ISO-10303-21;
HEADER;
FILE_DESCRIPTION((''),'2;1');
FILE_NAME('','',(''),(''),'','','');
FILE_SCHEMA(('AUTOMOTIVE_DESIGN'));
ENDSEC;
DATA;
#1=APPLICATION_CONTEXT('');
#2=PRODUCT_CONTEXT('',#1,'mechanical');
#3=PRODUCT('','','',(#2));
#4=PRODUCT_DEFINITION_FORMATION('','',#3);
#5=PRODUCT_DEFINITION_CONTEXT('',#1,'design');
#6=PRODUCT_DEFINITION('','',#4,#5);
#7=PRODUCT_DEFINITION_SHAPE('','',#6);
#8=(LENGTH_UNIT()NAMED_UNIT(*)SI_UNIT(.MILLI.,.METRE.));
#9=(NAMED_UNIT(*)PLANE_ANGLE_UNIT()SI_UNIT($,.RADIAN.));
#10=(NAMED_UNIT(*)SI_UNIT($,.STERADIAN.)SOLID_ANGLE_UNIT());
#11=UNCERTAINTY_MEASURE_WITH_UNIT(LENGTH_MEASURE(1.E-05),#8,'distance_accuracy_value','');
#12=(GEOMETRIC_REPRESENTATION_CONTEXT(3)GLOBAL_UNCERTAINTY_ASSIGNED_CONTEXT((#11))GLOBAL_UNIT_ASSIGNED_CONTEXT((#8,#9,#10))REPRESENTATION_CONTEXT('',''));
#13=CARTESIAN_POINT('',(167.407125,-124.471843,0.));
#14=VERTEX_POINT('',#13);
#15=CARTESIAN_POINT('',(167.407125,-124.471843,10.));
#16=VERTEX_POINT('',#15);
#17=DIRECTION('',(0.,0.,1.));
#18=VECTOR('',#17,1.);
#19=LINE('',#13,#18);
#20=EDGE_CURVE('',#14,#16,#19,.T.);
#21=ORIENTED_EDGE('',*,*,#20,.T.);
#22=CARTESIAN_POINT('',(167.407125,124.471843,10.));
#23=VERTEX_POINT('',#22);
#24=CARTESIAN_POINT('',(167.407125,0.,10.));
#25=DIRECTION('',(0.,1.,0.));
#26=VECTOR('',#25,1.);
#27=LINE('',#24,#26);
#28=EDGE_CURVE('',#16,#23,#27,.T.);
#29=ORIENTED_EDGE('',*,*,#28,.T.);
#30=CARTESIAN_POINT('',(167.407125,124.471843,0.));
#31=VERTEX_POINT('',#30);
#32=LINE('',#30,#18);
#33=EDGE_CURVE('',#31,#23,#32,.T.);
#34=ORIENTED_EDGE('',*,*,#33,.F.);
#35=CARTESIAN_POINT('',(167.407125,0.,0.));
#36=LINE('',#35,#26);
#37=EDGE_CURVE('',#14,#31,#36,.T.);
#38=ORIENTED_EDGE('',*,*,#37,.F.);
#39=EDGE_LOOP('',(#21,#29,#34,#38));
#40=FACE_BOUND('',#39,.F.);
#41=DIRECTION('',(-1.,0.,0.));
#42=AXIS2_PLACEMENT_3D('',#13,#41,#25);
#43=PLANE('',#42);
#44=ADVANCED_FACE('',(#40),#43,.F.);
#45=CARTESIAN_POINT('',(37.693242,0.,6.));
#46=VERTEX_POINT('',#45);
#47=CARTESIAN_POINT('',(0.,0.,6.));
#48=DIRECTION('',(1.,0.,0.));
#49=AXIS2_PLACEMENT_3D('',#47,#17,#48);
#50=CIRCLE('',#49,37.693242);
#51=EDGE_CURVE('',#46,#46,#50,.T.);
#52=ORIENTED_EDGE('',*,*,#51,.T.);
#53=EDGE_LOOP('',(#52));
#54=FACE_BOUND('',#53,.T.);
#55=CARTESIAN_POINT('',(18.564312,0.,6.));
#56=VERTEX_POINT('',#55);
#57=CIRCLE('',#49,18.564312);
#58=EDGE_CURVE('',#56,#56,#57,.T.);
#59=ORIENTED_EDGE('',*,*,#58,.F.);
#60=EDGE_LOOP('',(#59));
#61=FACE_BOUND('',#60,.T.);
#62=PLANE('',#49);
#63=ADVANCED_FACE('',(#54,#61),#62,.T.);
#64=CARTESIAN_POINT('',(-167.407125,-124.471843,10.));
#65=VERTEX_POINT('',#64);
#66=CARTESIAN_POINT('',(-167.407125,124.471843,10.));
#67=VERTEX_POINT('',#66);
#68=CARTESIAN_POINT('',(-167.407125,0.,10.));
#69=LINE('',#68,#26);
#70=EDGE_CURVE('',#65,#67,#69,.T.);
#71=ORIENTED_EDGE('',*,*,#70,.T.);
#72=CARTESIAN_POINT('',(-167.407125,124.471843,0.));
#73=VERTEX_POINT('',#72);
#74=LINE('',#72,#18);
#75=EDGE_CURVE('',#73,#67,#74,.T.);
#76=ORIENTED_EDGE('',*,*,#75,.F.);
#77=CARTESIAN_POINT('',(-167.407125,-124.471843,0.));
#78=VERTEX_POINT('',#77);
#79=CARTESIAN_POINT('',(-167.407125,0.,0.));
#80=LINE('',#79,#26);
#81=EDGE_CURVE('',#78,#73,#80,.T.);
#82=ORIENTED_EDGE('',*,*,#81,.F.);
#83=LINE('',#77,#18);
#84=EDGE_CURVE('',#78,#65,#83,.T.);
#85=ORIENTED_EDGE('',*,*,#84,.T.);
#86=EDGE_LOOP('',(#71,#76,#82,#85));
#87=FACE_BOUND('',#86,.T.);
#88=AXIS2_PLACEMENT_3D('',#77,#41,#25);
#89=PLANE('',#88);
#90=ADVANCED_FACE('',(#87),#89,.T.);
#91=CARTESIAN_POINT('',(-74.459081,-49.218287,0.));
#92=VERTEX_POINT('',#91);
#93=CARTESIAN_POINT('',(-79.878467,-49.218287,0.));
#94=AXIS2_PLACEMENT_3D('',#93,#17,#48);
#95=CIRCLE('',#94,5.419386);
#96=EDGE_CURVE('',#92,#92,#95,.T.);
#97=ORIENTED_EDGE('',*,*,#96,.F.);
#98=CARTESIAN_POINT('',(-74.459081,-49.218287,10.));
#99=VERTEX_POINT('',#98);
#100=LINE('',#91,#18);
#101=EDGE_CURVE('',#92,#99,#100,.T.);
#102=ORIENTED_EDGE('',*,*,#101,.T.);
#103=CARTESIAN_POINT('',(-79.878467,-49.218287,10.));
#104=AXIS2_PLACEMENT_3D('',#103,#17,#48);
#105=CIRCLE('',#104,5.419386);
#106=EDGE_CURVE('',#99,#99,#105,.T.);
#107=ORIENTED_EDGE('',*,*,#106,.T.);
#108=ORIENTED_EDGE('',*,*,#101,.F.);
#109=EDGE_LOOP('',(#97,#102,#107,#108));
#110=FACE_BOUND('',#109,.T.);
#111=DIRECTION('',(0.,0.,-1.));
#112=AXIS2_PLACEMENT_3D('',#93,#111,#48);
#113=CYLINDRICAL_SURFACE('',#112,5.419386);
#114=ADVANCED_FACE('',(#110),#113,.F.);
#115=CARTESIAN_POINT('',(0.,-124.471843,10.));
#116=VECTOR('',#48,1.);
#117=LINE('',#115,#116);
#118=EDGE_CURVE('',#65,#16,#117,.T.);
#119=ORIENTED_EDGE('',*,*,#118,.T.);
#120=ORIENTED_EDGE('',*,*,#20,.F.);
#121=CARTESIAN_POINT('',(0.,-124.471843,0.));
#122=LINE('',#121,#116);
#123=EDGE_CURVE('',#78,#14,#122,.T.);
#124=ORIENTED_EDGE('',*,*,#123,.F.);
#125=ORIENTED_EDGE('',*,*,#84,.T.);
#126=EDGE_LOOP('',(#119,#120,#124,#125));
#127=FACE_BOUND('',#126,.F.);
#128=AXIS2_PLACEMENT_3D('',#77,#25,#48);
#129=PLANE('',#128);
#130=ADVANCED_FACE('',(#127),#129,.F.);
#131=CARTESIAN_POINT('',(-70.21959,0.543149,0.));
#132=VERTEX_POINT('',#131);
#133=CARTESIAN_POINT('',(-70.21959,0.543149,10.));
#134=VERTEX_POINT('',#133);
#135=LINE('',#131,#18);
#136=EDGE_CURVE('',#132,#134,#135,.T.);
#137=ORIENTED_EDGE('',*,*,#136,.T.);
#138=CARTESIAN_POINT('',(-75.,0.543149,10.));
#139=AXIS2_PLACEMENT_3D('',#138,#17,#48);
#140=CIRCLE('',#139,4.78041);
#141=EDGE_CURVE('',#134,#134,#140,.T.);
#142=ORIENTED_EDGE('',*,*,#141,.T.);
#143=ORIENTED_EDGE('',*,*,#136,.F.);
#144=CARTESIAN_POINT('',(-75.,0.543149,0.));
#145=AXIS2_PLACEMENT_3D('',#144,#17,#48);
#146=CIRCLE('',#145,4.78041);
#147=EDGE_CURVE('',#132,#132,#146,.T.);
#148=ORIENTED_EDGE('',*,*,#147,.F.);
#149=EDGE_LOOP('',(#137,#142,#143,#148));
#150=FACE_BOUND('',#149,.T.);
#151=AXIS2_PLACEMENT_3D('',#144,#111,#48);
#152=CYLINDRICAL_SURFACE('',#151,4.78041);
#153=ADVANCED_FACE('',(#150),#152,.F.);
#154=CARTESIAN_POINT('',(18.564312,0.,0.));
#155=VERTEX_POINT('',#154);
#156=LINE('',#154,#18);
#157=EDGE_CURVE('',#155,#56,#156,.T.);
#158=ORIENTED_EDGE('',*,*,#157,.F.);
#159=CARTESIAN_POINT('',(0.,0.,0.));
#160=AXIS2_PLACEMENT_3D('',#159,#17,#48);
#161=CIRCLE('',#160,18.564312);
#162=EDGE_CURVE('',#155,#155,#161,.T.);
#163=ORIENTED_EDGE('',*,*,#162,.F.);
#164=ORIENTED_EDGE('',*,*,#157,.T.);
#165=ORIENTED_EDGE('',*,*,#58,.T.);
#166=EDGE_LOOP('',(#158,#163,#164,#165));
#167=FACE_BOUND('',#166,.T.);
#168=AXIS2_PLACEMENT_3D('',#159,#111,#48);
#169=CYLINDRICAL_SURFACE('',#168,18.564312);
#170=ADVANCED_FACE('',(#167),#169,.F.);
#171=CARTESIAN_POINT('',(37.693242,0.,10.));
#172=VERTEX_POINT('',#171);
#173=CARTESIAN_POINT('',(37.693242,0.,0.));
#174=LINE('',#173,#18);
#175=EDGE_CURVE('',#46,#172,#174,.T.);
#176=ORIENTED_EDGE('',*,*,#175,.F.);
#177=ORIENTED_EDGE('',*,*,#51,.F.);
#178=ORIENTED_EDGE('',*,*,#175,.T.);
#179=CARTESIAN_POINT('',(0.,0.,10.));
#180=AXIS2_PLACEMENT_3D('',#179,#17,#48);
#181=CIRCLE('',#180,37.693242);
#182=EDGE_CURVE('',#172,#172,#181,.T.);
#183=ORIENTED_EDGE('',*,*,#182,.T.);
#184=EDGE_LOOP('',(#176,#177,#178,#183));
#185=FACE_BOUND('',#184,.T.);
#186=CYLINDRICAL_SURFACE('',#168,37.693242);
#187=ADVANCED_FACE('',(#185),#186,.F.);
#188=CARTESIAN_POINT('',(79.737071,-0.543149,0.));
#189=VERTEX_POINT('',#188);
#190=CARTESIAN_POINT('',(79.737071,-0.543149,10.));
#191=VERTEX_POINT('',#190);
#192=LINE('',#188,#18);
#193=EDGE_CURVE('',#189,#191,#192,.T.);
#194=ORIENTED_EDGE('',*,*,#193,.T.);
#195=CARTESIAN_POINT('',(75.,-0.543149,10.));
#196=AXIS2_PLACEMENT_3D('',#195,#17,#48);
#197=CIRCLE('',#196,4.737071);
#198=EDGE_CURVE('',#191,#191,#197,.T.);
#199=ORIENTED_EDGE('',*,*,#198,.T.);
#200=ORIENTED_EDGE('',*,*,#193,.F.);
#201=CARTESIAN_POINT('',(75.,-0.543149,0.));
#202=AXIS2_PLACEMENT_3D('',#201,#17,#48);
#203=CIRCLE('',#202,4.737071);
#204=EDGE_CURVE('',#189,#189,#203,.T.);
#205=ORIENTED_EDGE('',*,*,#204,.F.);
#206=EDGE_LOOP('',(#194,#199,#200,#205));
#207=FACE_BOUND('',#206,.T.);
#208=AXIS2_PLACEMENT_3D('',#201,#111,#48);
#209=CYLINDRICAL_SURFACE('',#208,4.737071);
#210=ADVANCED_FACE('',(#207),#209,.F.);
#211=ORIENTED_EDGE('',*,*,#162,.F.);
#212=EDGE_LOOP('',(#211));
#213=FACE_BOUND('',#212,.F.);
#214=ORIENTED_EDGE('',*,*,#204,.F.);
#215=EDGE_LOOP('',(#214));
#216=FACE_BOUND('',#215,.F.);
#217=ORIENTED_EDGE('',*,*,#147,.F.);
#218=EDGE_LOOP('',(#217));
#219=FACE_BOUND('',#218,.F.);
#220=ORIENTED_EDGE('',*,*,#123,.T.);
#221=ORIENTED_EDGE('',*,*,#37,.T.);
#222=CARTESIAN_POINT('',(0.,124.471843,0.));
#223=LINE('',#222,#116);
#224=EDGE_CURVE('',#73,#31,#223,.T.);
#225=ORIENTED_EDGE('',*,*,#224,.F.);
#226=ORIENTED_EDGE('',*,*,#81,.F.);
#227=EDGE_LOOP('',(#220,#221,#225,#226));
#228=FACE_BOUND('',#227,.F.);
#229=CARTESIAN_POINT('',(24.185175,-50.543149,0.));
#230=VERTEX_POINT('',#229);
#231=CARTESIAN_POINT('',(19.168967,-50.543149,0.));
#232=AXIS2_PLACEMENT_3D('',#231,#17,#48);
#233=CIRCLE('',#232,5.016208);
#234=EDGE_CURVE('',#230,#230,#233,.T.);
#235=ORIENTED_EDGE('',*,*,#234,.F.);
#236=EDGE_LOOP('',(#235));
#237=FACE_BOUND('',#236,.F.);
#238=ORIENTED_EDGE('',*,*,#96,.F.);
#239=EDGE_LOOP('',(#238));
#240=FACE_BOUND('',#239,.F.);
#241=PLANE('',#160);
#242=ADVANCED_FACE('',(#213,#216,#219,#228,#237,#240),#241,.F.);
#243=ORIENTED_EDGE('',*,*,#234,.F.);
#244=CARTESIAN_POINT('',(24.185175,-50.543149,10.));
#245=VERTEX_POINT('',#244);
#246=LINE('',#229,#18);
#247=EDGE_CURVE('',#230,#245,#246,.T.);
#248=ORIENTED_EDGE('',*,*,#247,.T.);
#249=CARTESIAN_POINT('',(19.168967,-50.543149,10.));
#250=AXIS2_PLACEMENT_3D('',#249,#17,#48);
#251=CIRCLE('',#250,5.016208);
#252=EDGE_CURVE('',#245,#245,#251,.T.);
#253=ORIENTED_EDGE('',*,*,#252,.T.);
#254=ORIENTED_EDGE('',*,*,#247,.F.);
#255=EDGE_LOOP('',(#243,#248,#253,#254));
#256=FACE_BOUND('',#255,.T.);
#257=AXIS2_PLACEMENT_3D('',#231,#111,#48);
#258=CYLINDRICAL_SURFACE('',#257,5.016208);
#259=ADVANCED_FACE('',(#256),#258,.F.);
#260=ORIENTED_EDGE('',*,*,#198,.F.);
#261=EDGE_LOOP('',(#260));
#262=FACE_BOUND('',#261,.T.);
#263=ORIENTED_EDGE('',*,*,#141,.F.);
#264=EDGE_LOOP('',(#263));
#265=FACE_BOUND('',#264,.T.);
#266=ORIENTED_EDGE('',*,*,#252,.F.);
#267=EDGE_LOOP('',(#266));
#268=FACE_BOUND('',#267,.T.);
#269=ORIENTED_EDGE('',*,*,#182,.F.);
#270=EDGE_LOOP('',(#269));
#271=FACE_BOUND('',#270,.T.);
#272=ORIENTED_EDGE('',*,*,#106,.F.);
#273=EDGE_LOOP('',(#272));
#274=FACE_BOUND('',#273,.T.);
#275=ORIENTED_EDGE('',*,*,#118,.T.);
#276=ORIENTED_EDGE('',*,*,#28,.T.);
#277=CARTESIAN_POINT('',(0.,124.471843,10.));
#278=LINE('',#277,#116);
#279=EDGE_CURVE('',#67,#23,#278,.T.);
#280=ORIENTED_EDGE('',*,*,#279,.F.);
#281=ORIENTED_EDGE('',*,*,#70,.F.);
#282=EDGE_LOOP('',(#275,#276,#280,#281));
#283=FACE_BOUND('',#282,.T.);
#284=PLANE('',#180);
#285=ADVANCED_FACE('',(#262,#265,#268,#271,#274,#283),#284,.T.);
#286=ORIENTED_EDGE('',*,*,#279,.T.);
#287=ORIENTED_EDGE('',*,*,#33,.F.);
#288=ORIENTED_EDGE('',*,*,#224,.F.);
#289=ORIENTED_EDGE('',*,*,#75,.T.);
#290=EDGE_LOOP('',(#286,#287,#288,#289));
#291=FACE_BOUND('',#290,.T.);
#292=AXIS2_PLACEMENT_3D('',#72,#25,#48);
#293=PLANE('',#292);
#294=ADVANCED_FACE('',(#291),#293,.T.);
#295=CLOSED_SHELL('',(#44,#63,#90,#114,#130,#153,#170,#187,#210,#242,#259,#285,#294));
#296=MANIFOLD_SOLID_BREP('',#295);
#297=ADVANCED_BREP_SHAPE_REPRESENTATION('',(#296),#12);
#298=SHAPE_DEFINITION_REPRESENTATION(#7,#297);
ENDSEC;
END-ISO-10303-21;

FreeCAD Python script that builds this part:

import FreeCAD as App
import Part
import Sketcher

V = App.Vector

doc = App.newDocument("Part")
params = doc.addObject("Spreadsheet::Sheet", "Params")
for row, (alias, value) in enumerate([
    ("pad1_length", "10 mm"),
    ("pad2_length", "6 mm"),
], start=1):
    params.set(f"A{row}", alias)
    params.set(f"B{row}", "=" + value)
    params.setAlias(f"B{row}", alias)

body = doc.addObject("PartDesign::Body", "Body")

sketch1 = doc.addObject("Sketcher::SketchObject", "Sketch")
body.addObject(sketch1)
sketch1.AttachmentSupport = (doc.XY_Plane, [""])
sketch1.MapMode = "FlatFace"
sketch1.addGeometry([
    Part.LineSegment(V(-167.4, 124.5, 0), V(-167.4, -124.5, 0)),
    Part.LineSegment(V(-167.4, -124.5, 0), V(167.4, -124.5, 0)),
    Part.LineSegment(V(167.4, -124.5, 0), V(167.4, 124.5, 0)),
    Part.LineSegment(V(167.4, 124.5, 0), V(-167.4, 124.5, 0)),
    Part.Circle(V(-79.9, -49.2, 0), V(0, 0, 1), 5.4),
    Part.Circle(V(19.2, -50.5, 0), V(0, 0, 1), 5),
    Part.Circle(V(-75, 0.5, 0), V(0, 0, 1), 4.8),
    Part.Circle(V(0, 0, 0), V(0, 0, 1), 37.7),
    Part.Circle(V(75, -0.5, 0), V(0, 0, 1), 4.7),
], False)
sketch1.addConstraint([
    Sketcher.Constraint("Coincident", 0, 2, 1, 1),
    Sketcher.Constraint("Coincident", 1, 2, 2, 1),
    Sketcher.Constraint("Coincident", 2, 2, 3, 1),
    Sketcher.Constraint("Coincident", 3, 2, 0, 1),
    Sketcher.Constraint("Vertical", 0),
    Sketcher.Constraint("Horizontal", 1),
    Sketcher.Constraint("Vertical", 2),
    Sketcher.Constraint("Horizontal", 3),
    Sketcher.Constraint("Coincident", 7, 3, -1, 1),
    Sketcher.Constraint("Symmetric", 6, 3, 8, 3, -1, 1),
    Sketcher.Constraint("Symmetric", 0, 2, 2, 2, -1, 1),
    Sketcher.Constraint("DistanceX", 6, 3, -1, 1, 75.0),
    Sketcher.Constraint("DistanceY", 5, 3, 8, 3, 50.0),
    Sketcher.Constraint("Diameter", 6, 9.56082),
    Sketcher.Constraint("Diameter", 4, 10.838772),
    Sketcher.Constraint("Diameter", 5, 10.032416),
    Sketcher.Constraint("Diameter", 7, 75.386484),
    Sketcher.Constraint("Diameter", 8, 9.474142),
    Sketcher.Constraint("DistanceX", 1, 1, 1, 2, 334.81425),
    Sketcher.Constraint("DistanceY", 0, 2, 0, 1, 248.943686),
    Sketcher.Constraint("DistanceY", 5, 3, -1, 1, 50.543149),
    Sketcher.Constraint("DistanceX", 0, 2, 4, 3, 87.528658),
    Sketcher.Constraint("DistanceX", 5, 3, 1, 2, 148.238158),
    Sketcher.Constraint("DistanceY", 4, 3, 3, 2, 173.69013),
])
pad1 = doc.addObject("PartDesign::Pad", "Pad")
body.addObject(pad1)
pad1.Profile = sketch1
pad1.setExpression("Length", "Params.pad1_length")

sketch2 = doc.addObject("Sketcher::SketchObject", "Sketch001")
body.addObject(sketch2)
sketch2.AttachmentSupport = (doc.XY_Plane, [""])
sketch2.MapMode = "FlatFace"
sketch2.addGeometry([
    Part.Circle(V(0, 0, 0), V(0, 0, 1), 38),
    Part.Circle(V(0, 0, 0), V(0, 0, 1), 19),
], False)
sketch2.addConstraint([
    Sketcher.Constraint("Coincident", 0, 3, -1, 1),
    Sketcher.Constraint("Coincident", 1, 3, -1, 1),
    Sketcher.Constraint("Diameter", 0, 75.386484),
    Sketcher.Constraint("Diameter", 1, 37.128624),
])
pad2 = doc.addObject("PartDesign::Pad", "Pad001")
body.addObject(pad2)
pad2.Profile = sketch2
pad2.setExpression("Length", "Params.pad2_length")

doc.recompute()
